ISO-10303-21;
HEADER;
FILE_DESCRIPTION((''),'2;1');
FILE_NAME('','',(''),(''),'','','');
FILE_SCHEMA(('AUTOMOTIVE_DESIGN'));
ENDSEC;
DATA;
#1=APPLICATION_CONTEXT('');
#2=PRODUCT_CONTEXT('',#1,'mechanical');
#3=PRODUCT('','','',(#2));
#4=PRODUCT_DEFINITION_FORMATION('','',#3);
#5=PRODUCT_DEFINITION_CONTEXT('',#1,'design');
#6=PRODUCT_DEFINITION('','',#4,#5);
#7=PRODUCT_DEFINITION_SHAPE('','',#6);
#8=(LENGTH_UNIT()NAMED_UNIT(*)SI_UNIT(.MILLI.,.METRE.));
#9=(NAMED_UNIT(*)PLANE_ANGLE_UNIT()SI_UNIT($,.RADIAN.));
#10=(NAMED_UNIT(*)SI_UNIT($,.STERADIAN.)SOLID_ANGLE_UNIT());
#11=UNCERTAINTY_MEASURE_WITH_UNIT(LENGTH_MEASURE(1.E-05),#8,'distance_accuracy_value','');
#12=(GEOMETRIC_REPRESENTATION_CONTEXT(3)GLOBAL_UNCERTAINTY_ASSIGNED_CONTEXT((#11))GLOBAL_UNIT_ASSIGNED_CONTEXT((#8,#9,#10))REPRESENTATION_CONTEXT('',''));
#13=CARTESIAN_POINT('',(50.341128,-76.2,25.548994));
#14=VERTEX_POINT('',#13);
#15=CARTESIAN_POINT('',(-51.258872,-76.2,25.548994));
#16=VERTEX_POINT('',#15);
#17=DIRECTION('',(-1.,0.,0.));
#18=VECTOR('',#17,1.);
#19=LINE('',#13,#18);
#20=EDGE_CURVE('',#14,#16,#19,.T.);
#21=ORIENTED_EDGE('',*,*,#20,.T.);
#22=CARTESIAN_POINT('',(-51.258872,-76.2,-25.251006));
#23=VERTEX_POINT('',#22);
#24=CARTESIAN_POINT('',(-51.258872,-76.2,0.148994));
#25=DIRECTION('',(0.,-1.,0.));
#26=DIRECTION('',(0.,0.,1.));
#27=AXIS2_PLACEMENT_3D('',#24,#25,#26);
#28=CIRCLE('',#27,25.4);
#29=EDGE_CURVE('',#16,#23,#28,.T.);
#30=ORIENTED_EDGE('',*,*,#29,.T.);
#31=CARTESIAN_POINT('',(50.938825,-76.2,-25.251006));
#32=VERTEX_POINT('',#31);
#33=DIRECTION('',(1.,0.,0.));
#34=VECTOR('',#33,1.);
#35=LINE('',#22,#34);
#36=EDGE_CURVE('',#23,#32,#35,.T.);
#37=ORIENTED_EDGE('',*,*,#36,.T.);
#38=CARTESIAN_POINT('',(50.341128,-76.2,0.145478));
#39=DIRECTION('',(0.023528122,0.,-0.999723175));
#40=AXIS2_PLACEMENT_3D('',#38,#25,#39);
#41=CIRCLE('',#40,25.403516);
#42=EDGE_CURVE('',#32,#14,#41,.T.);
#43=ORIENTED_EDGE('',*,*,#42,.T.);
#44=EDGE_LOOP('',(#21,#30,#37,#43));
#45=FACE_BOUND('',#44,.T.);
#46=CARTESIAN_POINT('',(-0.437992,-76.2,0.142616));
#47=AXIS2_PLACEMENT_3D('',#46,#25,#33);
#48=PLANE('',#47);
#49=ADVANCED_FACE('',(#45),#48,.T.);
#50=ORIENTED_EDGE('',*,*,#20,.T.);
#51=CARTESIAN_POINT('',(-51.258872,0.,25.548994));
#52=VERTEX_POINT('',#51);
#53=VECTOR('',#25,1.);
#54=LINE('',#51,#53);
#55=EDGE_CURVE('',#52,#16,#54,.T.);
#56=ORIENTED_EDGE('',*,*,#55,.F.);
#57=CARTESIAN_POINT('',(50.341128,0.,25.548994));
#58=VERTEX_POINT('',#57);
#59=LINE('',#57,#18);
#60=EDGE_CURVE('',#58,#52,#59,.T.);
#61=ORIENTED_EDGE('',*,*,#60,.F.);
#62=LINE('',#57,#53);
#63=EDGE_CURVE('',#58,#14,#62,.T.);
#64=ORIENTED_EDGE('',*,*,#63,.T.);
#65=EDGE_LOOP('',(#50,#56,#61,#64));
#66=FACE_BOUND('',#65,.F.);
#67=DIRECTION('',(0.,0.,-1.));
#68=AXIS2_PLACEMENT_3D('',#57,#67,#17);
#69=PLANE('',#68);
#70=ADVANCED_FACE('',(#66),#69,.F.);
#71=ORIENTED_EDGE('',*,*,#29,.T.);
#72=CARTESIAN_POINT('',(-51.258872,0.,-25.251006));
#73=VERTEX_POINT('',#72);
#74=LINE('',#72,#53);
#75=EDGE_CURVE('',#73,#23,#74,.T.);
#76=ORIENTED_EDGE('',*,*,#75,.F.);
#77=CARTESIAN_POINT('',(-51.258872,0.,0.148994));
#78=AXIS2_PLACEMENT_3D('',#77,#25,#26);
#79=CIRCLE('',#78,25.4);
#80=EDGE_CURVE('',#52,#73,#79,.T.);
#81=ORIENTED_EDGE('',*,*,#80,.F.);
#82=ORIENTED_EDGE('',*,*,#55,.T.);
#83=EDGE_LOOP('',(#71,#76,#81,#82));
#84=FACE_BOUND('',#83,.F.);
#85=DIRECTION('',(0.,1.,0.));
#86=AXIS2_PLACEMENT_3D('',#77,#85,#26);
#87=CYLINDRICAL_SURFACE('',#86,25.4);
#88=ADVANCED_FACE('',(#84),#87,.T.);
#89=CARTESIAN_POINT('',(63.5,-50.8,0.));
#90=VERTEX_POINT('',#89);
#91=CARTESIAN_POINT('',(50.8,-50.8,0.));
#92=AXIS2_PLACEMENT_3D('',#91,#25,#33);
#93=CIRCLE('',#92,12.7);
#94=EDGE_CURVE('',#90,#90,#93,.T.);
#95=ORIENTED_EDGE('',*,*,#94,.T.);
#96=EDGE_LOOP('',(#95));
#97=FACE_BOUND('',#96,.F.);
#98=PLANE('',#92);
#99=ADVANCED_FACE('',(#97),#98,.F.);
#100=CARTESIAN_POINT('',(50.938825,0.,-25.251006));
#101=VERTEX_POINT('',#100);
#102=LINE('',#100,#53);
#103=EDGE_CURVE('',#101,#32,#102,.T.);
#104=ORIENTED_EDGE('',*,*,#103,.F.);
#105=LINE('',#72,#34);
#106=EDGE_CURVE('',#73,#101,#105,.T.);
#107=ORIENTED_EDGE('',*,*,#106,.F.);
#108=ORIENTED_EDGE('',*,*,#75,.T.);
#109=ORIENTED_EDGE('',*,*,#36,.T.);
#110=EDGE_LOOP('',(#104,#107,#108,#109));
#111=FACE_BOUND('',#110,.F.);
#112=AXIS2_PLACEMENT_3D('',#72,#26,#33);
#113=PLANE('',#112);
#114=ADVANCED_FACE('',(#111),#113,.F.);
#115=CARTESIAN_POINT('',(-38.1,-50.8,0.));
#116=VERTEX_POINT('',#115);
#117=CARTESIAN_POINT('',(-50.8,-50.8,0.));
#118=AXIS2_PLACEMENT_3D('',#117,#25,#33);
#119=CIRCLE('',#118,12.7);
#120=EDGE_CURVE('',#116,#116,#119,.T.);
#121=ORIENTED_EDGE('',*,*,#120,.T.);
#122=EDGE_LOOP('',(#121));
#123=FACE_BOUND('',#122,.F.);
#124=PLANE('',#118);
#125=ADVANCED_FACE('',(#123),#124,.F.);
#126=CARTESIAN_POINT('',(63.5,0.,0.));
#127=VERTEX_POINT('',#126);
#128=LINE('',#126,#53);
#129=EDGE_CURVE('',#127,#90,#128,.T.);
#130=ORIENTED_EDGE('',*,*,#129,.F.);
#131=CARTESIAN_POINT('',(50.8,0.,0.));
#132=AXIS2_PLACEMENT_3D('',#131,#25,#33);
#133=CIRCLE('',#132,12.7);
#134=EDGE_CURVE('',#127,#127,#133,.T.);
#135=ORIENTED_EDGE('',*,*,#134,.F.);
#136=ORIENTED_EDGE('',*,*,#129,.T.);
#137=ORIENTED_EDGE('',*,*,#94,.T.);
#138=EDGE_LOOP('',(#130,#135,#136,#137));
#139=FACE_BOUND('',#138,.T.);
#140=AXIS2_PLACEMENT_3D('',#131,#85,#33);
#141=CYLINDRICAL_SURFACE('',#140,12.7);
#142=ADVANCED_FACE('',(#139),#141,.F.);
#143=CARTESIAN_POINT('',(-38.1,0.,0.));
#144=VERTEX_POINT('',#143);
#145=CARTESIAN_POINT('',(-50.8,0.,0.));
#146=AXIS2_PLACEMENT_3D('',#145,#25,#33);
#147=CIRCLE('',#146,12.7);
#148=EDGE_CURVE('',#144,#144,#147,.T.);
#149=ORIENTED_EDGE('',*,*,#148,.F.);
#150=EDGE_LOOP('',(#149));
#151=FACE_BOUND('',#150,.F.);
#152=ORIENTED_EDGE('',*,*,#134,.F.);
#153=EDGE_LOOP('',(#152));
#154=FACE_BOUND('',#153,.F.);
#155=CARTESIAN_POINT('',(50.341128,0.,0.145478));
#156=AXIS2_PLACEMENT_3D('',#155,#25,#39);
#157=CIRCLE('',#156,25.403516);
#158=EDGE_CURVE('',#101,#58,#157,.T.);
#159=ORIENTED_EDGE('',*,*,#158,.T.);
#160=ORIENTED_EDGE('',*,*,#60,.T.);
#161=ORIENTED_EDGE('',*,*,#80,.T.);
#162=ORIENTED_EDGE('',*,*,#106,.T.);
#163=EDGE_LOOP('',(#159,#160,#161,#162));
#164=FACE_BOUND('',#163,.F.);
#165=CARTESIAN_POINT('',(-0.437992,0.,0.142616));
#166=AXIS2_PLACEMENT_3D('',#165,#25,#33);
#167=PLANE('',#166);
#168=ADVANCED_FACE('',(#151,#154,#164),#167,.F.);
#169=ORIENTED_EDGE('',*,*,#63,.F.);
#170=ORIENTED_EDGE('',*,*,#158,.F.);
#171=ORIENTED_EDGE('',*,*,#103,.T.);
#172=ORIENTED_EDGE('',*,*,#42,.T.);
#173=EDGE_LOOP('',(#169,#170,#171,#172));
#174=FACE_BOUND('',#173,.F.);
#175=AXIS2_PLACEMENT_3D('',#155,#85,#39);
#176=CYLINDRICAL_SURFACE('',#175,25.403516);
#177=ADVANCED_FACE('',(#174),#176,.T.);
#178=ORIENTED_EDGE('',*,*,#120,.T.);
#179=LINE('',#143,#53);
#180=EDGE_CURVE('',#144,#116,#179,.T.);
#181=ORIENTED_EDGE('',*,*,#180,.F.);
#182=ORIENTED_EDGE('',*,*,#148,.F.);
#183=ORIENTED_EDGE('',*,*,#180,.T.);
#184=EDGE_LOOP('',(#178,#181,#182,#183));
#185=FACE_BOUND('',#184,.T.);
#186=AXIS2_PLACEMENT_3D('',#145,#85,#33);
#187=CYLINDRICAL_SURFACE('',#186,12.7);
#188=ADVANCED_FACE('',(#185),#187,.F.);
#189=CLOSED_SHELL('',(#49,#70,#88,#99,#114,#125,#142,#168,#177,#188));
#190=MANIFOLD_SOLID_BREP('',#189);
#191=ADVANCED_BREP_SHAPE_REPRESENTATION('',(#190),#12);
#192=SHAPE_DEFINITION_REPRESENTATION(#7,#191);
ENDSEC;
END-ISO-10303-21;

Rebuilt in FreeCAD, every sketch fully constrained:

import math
import FreeCAD as App
import Part
import Sketcher
from FreeCAD import Vector
Q = App.Units.Quantity

doc = App.newDocument("Part")
body = doc.addObject("PartDesign::Body", "Body")

# Sketch on XZ plane
sketch1 = body.newObject("Sketcher::SketchObject", "Sketch")
sketch1.AttachmentSupport = (doc.getObject("XZ_Plane"), [""])
sketch1.MapMode = "FlatFace"
sketch1.addGeometry(Part.LineSegment(Vector(50.341128, 25.548994, 0), Vector(-51.258872, 25.548994, 0)), False)
sketch1.addGeometry(Part.ArcOfCircle(Part.Circle(Vector(-51.258872, 0.148994, 0), Vector(0, 0, 1), 25.4), math.radians(90), math.radians(270)), False)
sketch1.addGeometry(Part.LineSegment(Vector(-51.258872, -25.251006, 0), Vector(50.938825, -25.251006, 0)), False)
sketch1.addGeometry(Part.ArcOfCircle(Part.Circle(Vector(50.341128, 0.145478, 0), Vector(0, 0, 1), 25.403516), math.radians(-88.651814), math.radians(90)), False)
sketch1.addConstraint(Sketcher.Constraint("Tangent", 0, 2, 1, 1))
sketch1.addConstraint(Sketcher.Constraint("Tangent", 1, 2, 2, 1))
sketch1.addConstraint(Sketcher.Constraint("Coincident", 2, 2, 3, 1))
sketch1.addConstraint(Sketcher.Constraint("Tangent", 3, 2, 0, 1))
sketch1.addConstraint(Sketcher.Constraint("Horizontal", 0))
sketch1.addConstraint(Sketcher.Constraint("Horizontal", 2))
sketch1.addConstraint(Sketcher.Constraint("Radius", 1, Q("1 in")))
sketch1.addConstraint(Sketcher.Constraint("DistanceX", 0, 2, 0, 1, Q("4 in")))
sketch1.addConstraint(Sketcher.Constraint("Radius", 3, 25.403516))
sketch1.addConstraint(Sketcher.Constraint("DistanceX", 1, 3, -1, 1, 51.258872))
sketch1.addConstraint(Sketcher.Constraint("DistanceY", -1, 1, 1, 3, 0.148994))
pad1 = body.newObject("PartDesign::Pad", "Pad")
pad1.Profile = sketch1
pad1.Length = Q("3 in")

# Sketch on XZ plane
sketch2 = body.newObject("Sketcher::SketchObject", "Sketch001")
sketch2.AttachmentSupport = (doc.getObject("XZ_Plane"), [""])
sketch2.MapMode = "FlatFace"
sketch2.addGeometry(Part.Circle(Vector(50.8, 0, 0), Vector(0, 0, 1), 12.7), False)
sketch2.addGeometry(Part.Circle(Vector(-50.8, 0, 0), Vector(0, 0, 1), 12.7), False)
sketch2.addConstraint(Sketcher.Constraint("Equal", 0, 1))
sketch2.addConstraint(Sketcher.Constraint("Symmetric", 0, 3, 1, 3, -1, 1))
sketch2.addConstraint(Sketcher.Constraint("PointOnObject", 0, 3, -1))
sketch2.addConstraint(Sketcher.Constraint("Diameter", 0, Q("1 in")))
sketch2.addConstraint(Sketcher.Constraint("DistanceX", -1, 1, 0, 3, Q("2 in")))
pocket1 = body.newObject("PartDesign::Pocket", "Pocket")
pocket1.Profile = sketch2
pocket1.Length = Q("2 in")
pocket1.Reversed = True

doc.recompute()
